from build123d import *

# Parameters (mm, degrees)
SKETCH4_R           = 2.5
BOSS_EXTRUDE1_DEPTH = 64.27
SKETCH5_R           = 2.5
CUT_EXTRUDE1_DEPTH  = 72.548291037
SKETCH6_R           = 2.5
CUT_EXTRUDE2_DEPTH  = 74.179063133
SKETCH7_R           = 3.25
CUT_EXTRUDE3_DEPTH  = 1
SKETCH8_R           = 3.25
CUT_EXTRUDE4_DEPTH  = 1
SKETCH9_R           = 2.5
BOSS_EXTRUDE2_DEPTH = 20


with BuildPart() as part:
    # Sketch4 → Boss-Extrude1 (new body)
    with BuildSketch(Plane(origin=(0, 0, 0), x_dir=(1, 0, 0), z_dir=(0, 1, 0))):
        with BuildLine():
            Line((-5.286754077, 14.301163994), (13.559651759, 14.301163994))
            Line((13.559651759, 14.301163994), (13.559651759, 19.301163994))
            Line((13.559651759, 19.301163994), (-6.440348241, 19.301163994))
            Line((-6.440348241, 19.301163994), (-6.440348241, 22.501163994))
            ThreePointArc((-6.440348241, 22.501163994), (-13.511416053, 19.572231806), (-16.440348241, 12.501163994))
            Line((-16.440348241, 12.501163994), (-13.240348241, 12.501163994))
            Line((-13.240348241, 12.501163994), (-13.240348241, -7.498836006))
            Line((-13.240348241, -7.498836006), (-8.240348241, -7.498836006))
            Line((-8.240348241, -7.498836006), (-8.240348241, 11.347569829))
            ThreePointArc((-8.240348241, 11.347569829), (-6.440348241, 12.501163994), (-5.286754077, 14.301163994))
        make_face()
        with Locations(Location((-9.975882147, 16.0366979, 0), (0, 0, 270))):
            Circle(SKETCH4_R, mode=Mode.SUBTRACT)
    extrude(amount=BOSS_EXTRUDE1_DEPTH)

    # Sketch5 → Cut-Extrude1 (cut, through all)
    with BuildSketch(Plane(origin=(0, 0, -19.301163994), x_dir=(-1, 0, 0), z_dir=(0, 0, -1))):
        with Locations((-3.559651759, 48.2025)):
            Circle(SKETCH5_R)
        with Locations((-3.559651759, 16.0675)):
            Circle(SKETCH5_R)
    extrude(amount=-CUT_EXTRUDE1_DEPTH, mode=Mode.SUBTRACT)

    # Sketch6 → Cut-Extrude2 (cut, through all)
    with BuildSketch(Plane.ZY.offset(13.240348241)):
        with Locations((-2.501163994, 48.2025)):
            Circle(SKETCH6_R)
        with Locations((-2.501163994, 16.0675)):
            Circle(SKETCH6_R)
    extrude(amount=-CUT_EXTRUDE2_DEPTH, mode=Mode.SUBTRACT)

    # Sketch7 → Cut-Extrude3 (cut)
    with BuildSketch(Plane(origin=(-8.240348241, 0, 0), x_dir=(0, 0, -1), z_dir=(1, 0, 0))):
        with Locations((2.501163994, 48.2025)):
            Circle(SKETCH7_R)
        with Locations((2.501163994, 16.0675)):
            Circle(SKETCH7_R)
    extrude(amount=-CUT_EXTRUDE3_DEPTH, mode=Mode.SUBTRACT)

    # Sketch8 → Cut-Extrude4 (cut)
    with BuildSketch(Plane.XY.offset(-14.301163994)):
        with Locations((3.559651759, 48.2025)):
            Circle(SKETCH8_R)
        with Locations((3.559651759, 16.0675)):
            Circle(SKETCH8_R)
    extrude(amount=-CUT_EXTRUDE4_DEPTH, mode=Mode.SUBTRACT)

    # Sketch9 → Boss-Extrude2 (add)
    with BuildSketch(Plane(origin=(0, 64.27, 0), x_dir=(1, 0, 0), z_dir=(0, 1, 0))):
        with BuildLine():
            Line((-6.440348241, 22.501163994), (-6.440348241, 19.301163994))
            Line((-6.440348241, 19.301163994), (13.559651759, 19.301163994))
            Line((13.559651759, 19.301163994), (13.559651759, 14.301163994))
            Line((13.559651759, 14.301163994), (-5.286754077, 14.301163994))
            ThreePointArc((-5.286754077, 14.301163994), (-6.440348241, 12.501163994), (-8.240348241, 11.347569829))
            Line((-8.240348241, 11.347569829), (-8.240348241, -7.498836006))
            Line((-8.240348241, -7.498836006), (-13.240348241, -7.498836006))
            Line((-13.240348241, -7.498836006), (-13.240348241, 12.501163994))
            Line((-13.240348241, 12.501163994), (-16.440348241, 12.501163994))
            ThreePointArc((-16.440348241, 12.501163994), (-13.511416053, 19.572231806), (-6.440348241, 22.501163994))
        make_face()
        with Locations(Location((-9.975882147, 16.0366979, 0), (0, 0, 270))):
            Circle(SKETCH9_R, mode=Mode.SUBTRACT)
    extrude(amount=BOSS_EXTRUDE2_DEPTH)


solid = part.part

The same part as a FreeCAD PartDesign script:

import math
import FreeCAD as App
import Part
import Sketcher

V = App.Vector

doc = App.newDocument("Part")
body = doc.addObject("PartDesign::Body", "Body")

sketch1 = body.newObject("Sketcher::SketchObject", "Sketch")
sketch1.AttachmentSupport = (doc.getObject("XZ_Plane"), [""])
sketch1.MapMode = "FlatFace"
sketch1.addGeometry([
    Part.LineSegment(V(-5.3, -14.3, 0), V(13.6, -14.3, 0)),
    Part.LineSegment(V(13.6, -14.3, 0), V(13.6, -19.3, 0)),
    Part.LineSegment(V(13.6, -19.3, 0), V(-6.4, -19.3, 0)),
    Part.LineSegment(V(-6.4, -19.3, 0), V(-6.4, -22.5, 0)),
    Part.ArcOfCircle(Part.Circle(V(-6.4, -12.5, 0), V(0, 0, 1), 10), math.radians(180), math.radians(270)),
    Part.LineSegment(V(-16.4, -12.5, 0), V(-13.2, -12.5, 0)),
    Part.LineSegment(V(-13.2, -12.5, 0), V(-13.2, 7.5, 0)),
    Part.LineSegment(V(-13.2, 7.5, 0), V(-8.2, 7.5, 0)),
    Part.LineSegment(V(-8.2, 7.5, 0), V(-8.2, -11.3, 0)),
    Part.ArcOfCircle(Part.Circle(V(-10, -16, 0), V(0, 0, 1), 5), math.radians(20), math.radians(70)),
    Part.Circle(V(-10, -16, 0), V(0, 0, 1), 2.5),
], False)
sketch1.addConstraint([
    Sketcher.Constraint("Coincident", 0, 2, 1, 1),
    Sketcher.Constraint("Coincident", 1, 2, 2, 1),
    Sketcher.Constraint("Coincident", 2, 2, 3, 1),
    Sketcher.Constraint("Coincident", 3, 2, 4, 2),
    Sketcher.Constraint("Coincident", 4, 1, 5, 1),
    Sketcher.Constraint("Coincident", 5, 2, 6, 1),
    Sketcher.Constraint("Coincident", 6, 2, 7, 1),
    Sketcher.Constraint("Coincident", 7, 2, 8, 1),
    Sketcher.Constraint("Coincident", 8, 2, 9, 2),
    Sketcher.Constraint("Coincident", 9, 1, 0, 1),
    Sketcher.Constraint("Horizontal", 0),
    Sketcher.Constraint("Vertical", 1),
    Sketcher.Constraint("Horizontal", 2),
    Sketcher.Constraint("Vertical", 3),
    Sketcher.Constraint("Horizontal", 5),
    Sketcher.Constraint("Vertical", 6),
    Sketcher.Constraint("Horizontal", 7),
    Sketcher.Constraint("Vertical", 8),
    Sketcher.Constraint("Coincident", 10, 3, 9, 3),
    Sketcher.Constraint("Vertical", 4, 3, 2, 2),
    Sketcher.Constraint("Equal", 7, 1),
    Sketcher.Constraint("Equal", 5, 3),
    Sketcher.Constraint("Equal", 2, 6),
    Sketcher.Constraint("Equal", 0, 8),
    Sketcher.Constraint("Diameter", 10, 5.0),
    Sketcher.Constraint("Radius", 4, 10.0),
    Sketcher.Constraint("Radius", 9, 5.0),
    Sketcher.Constraint("DistanceX", 2, 2, 2, 1, 20.0),
    Sketcher.Constraint("DistanceX", 7, 1, 7, 2, 5.0),
    Sketcher.Constraint("DistanceX", 5, 1, 5, 2, 3.2),
    Sketcher.Constraint("DistanceY", 3, 2, 4, 1, 10.0),
    Sketcher.Constraint("DistanceX", 0, 1, 0, 2, 18.846406),
    Sketcher.Constraint("DistanceX", 4, 3, -1, 1, 6.440348),
    Sketcher.Constraint("DistanceY", 8, 2, -1, 1, 11.34757),
])
pad1 = body.newObject("PartDesign::Pad", "Pad")
pad1.Profile = sketch1
pad1.Length = 64.27
pad1.Reversed = True

sketch2 = body.newObject("Sketcher::SketchObject", "Sketch001")
sketch2.AttachmentSupport = (doc.getObject("XY_Plane"), [""])
sketch2.MapMode = "FlatFace"
sketch2.AttachmentOffset = App.Placement(V(0, 0, -19.301164), App.Rotation())
sketch2.addGeometry([
    Part.Circle(V(3.6, 48.2, 0), V(0, 0, 1), 2.5),
    Part.Circle(V(3.6, 16.1, 0), V(0, 0, 1), 2.5),
], False)
sketch2.addConstraint([
    Sketcher.Constraint("Equal", 0, 1),
    Sketcher.Constraint("Vertical", 0, 3, 1, 3),
    Sketcher.Constraint("Diameter", 0, 5.0),
    Sketcher.Constraint("DistanceY", 1, 3, 0, 3, 32.135),
    Sketcher.Constraint("DistanceY", -1, 1, 0, 3, 48.2025),
    Sketcher.Constraint("DistanceX", -1, 1, 0, 3, 3.559652),
])
pocket1 = body.newObject("PartDesign::Pocket", "Pocket")
pocket1.Profile = sketch2
pocket1.Type = "ThroughAll"
pocket1.Reversed = True

sketch3 = body.newObject("Sketcher::SketchObject", "Sketch002")
sketch3.AttachmentSupport = (doc.getObject("YZ_Plane"), [""])
sketch3.MapMode = "FlatFace"
sketch3.AttachmentOffset = App.Placement(V(0, 0, -13.240348), App.Rotation())
sketch3.addGeometry([
    Part.Circle(V(48.2, -2.5, 0), V(0, 0, 1), 2.5),
    Part.Circle(V(16.1, -2.5, 0), V(0, 0, 1), 2.5),
], False)
sketch3.addConstraint([
    Sketcher.Constraint("Equal", 0, 1),
    Sketcher.Constraint("Horizontal", 0, 3, 1, 3),
    Sketcher.Constraint("Diameter", 0, 5.0),
    Sketcher.Constraint("DistanceX", 1, 3, 0, 3, 32.135),
    Sketcher.Constraint("DistanceX", -1, 1, 0, 3, 48.2025),
    Sketcher.Constraint("DistanceY", 0, 3, -1, 1, 2.501164),
])
pocket2 = body.newObject("PartDesign::Pocket", "Pocket001")
pocket2.Profile = sketch3
pocket2.Type = "ThroughAll"
pocket2.Reversed = True

sketch4 = body.newObject("Sketcher::SketchObject", "Sketch003")
sketch4.AttachmentSupport = (doc.getObject("YZ_Plane"), [""])
sketch4.MapMode = "FlatFace"
sketch4.AttachmentOffset = App.Placement(V(0, 0, -8.240348), App.Rotation())
sketch4.addGeometry([
    Part.Circle(V(48.2, -2.5, 0), V(0, 0, 1), 3.2),
    Part.Circle(V(16.1, -2.5, 0), V(0, 0, 1), 3.2),
], False)
sketch4.addConstraint([
    Sketcher.Constraint("Equal", 0, 1),
    Sketcher.Constraint("Horizontal", 0, 3, 1, 3),
    Sketcher.Constraint("Diameter", 0, 6.5),
    Sketcher.Constraint("DistanceX", 1, 3, 0, 3, 32.135),
    Sketcher.Constraint("DistanceX", -1, 1, 0, 3, 48.2025),
    Sketcher.Constraint("DistanceY", 0, 3, -1, 1, 2.501164),
])
pocket3 = body.newObject("PartDesign::Pocket", "Pocket002")
pocket3.Profile = sketch4
pocket3.Length = 1

sketch5 = body.newObject("Sketcher::SketchObject", "Sketch004")
sketch5.AttachmentSupport = (doc.getObject("XY_Plane"), [""])
sketch5.MapMode = "FlatFace"
sketch5.AttachmentOffset = App.Placement(V(0, 0, -14.301164), App.Rotation())
sketch5.addGeometry([
    Part.Circle(V(3.6, 48.2, 0), V(0, 0, 1), 3.2),
    Part.Circle(V(3.6, 16.1, 0), V(0, 0, 1), 3.2),
], False)
sketch5.addConstraint([
    Sketcher.Constraint("Equal", 0, 1),
    Sketcher.Constraint("Vertical", 0, 3, 1, 3),
    Sketcher.Constraint("Diameter", 0, 6.5),
    Sketcher.Constraint("DistanceY", 1, 3, 0, 3, 32.135),
    Sketcher.Constraint("DistanceY", -1, 1, 0, 3, 48.2025),
    Sketcher.Constraint("DistanceX", -1, 1, 0, 3, 3.559652),
])
pocket4 = body.newObject("PartDesign::Pocket", "Pocket003")
pocket4.Profile = sketch5
pocket4.Length = 1

sketch6 = body.newObject("Sketcher::SketchObject", "Sketch005")
sketch6.AttachmentSupport = (doc.getObject("XZ_Plane"), [""])
sketch6.MapMode = "FlatFace"
sketch6.AttachmentOffset = App.Placement(V(0, 0, -64.27), App.Rotation())
sketch6.addGeometry([
    Part.LineSegment(V(-6.4, -19.3, 0), V(-6.4, -22.5, 0)),
    Part.ArcOfCircle(Part.Circle(V(-6.4, -12.5, 0), V(0, 0, 1), 10), math.radians(180), math.radians(270)),
    Part.LineSegment(V(-16.4, -12.5, 0), V(-13.2, -12.5, 0)),
    Part.LineSegment(V(-13.2, -12.5, 0), V(-13.2, 7.5, 0)),
    Part.LineSegment(V(-13.2, 7.5, 0), V(-8.2, 7.5, 0)),
    Part.LineSegment(V(-8.2, 7.5, 0), V(-8.2, -11.3, 0)),
    Part.ArcOfCircle(Part.Circle(V(-10, -16, 0), V(0, 0, 1), 5), math.radians(20), math.radians(70)),
    Part.LineSegment(V(-5.3, -14.3, 0), V(13.6, -14.3, 0)),
    Part.LineSegment(V(13.6, -14.3, 0), V(13.6, -19.3, 0)),
    Part.LineSegment(V(13.6, -19.3, 0), V(-6.4, -19.3, 0)),
    Part.Circle(V(-10, -16, 0), V(0, 0, 1), 2.5),
], False)
sketch6.addConstraint([
    Sketcher.Constraint("Coincident", 0, 2, 1, 2),
    Sketcher.Constraint("Coincident", 1, 1, 2, 1),
    Sketcher.Constraint("Coincident", 2, 2, 3, 1),
    Sketcher.Constraint("Coincident", 3, 2, 4, 1),
    Sketcher.Constraint("Coincident", 4, 2, 5, 1),
    Sketcher.Constraint("Coincident", 5, 2, 6, 2),
    Sketcher.Constraint("Coincident", 6, 1, 7, 1),
    Sketcher.Constraint("Coincident", 7, 2, 8, 1),
    Sketcher.Constraint("Coincident", 8, 2, 9, 1),
    Sketcher.Constraint("Coincident", 9, 2, 0, 1),
    Sketcher.Constraint("Vertical", 0),
    Sketcher.Constraint("Horizontal", 2),
    Sketcher.Constraint("Vertical", 3),
    Sketcher.Constraint("Horizontal", 4),
    Sketcher.Constraint("Vertical", 5),
    Sketcher.Constraint("Horizontal", 7),
    Sketcher.Constraint("Vertical", 8),
    Sketcher.Constraint("Horizontal", 9),
    Sketcher.Constraint("Coincident", 10, 3, 6, 3),
    Sketcher.Constraint("Vertical", 1, 3, 0, 2),
    Sketcher.Constraint("Equal", 2, 0),
    Sketcher.Constraint("Equal", 9, 3),
    Sketcher.Constraint("Equal", 7, 5),
    Sketcher.Constraint("Equal", 4, 8),
    Sketcher.Constraint("Diameter", 10, 5.0),
    Sketcher.Constraint("Radius", 1, 10.0),
    Sketcher.Constraint("Radius", 6, 5.0),
    Sketcher.Constraint("DistanceX", 4, 1, 4, 2, 5.0),
    Sketcher.Constraint("DistanceX", 9, 2, 9, 1, 20.0),
    Sketcher.Constraint("DistanceX", 2, 1, 2, 2, 3.2),
    Sketcher.Constraint("DistanceY", 0, 2, 1, 1, 10.0),
    Sketcher.Constraint("DistanceX", 7, 1, 7, 2, 18.846406),
    Sketcher.Constraint("DistanceX", 1, 3, -1, 1, 6.440348),
    Sketcher.Constraint("DistanceY", 5, 2, -1, 1, 11.34757),
])
pad2 = body.newObject("PartDesign::Pad", "Pad001")
pad2.Profile = sketch6
pad2.Length = 20
pad2.Reversed = True

doc.recompute()
